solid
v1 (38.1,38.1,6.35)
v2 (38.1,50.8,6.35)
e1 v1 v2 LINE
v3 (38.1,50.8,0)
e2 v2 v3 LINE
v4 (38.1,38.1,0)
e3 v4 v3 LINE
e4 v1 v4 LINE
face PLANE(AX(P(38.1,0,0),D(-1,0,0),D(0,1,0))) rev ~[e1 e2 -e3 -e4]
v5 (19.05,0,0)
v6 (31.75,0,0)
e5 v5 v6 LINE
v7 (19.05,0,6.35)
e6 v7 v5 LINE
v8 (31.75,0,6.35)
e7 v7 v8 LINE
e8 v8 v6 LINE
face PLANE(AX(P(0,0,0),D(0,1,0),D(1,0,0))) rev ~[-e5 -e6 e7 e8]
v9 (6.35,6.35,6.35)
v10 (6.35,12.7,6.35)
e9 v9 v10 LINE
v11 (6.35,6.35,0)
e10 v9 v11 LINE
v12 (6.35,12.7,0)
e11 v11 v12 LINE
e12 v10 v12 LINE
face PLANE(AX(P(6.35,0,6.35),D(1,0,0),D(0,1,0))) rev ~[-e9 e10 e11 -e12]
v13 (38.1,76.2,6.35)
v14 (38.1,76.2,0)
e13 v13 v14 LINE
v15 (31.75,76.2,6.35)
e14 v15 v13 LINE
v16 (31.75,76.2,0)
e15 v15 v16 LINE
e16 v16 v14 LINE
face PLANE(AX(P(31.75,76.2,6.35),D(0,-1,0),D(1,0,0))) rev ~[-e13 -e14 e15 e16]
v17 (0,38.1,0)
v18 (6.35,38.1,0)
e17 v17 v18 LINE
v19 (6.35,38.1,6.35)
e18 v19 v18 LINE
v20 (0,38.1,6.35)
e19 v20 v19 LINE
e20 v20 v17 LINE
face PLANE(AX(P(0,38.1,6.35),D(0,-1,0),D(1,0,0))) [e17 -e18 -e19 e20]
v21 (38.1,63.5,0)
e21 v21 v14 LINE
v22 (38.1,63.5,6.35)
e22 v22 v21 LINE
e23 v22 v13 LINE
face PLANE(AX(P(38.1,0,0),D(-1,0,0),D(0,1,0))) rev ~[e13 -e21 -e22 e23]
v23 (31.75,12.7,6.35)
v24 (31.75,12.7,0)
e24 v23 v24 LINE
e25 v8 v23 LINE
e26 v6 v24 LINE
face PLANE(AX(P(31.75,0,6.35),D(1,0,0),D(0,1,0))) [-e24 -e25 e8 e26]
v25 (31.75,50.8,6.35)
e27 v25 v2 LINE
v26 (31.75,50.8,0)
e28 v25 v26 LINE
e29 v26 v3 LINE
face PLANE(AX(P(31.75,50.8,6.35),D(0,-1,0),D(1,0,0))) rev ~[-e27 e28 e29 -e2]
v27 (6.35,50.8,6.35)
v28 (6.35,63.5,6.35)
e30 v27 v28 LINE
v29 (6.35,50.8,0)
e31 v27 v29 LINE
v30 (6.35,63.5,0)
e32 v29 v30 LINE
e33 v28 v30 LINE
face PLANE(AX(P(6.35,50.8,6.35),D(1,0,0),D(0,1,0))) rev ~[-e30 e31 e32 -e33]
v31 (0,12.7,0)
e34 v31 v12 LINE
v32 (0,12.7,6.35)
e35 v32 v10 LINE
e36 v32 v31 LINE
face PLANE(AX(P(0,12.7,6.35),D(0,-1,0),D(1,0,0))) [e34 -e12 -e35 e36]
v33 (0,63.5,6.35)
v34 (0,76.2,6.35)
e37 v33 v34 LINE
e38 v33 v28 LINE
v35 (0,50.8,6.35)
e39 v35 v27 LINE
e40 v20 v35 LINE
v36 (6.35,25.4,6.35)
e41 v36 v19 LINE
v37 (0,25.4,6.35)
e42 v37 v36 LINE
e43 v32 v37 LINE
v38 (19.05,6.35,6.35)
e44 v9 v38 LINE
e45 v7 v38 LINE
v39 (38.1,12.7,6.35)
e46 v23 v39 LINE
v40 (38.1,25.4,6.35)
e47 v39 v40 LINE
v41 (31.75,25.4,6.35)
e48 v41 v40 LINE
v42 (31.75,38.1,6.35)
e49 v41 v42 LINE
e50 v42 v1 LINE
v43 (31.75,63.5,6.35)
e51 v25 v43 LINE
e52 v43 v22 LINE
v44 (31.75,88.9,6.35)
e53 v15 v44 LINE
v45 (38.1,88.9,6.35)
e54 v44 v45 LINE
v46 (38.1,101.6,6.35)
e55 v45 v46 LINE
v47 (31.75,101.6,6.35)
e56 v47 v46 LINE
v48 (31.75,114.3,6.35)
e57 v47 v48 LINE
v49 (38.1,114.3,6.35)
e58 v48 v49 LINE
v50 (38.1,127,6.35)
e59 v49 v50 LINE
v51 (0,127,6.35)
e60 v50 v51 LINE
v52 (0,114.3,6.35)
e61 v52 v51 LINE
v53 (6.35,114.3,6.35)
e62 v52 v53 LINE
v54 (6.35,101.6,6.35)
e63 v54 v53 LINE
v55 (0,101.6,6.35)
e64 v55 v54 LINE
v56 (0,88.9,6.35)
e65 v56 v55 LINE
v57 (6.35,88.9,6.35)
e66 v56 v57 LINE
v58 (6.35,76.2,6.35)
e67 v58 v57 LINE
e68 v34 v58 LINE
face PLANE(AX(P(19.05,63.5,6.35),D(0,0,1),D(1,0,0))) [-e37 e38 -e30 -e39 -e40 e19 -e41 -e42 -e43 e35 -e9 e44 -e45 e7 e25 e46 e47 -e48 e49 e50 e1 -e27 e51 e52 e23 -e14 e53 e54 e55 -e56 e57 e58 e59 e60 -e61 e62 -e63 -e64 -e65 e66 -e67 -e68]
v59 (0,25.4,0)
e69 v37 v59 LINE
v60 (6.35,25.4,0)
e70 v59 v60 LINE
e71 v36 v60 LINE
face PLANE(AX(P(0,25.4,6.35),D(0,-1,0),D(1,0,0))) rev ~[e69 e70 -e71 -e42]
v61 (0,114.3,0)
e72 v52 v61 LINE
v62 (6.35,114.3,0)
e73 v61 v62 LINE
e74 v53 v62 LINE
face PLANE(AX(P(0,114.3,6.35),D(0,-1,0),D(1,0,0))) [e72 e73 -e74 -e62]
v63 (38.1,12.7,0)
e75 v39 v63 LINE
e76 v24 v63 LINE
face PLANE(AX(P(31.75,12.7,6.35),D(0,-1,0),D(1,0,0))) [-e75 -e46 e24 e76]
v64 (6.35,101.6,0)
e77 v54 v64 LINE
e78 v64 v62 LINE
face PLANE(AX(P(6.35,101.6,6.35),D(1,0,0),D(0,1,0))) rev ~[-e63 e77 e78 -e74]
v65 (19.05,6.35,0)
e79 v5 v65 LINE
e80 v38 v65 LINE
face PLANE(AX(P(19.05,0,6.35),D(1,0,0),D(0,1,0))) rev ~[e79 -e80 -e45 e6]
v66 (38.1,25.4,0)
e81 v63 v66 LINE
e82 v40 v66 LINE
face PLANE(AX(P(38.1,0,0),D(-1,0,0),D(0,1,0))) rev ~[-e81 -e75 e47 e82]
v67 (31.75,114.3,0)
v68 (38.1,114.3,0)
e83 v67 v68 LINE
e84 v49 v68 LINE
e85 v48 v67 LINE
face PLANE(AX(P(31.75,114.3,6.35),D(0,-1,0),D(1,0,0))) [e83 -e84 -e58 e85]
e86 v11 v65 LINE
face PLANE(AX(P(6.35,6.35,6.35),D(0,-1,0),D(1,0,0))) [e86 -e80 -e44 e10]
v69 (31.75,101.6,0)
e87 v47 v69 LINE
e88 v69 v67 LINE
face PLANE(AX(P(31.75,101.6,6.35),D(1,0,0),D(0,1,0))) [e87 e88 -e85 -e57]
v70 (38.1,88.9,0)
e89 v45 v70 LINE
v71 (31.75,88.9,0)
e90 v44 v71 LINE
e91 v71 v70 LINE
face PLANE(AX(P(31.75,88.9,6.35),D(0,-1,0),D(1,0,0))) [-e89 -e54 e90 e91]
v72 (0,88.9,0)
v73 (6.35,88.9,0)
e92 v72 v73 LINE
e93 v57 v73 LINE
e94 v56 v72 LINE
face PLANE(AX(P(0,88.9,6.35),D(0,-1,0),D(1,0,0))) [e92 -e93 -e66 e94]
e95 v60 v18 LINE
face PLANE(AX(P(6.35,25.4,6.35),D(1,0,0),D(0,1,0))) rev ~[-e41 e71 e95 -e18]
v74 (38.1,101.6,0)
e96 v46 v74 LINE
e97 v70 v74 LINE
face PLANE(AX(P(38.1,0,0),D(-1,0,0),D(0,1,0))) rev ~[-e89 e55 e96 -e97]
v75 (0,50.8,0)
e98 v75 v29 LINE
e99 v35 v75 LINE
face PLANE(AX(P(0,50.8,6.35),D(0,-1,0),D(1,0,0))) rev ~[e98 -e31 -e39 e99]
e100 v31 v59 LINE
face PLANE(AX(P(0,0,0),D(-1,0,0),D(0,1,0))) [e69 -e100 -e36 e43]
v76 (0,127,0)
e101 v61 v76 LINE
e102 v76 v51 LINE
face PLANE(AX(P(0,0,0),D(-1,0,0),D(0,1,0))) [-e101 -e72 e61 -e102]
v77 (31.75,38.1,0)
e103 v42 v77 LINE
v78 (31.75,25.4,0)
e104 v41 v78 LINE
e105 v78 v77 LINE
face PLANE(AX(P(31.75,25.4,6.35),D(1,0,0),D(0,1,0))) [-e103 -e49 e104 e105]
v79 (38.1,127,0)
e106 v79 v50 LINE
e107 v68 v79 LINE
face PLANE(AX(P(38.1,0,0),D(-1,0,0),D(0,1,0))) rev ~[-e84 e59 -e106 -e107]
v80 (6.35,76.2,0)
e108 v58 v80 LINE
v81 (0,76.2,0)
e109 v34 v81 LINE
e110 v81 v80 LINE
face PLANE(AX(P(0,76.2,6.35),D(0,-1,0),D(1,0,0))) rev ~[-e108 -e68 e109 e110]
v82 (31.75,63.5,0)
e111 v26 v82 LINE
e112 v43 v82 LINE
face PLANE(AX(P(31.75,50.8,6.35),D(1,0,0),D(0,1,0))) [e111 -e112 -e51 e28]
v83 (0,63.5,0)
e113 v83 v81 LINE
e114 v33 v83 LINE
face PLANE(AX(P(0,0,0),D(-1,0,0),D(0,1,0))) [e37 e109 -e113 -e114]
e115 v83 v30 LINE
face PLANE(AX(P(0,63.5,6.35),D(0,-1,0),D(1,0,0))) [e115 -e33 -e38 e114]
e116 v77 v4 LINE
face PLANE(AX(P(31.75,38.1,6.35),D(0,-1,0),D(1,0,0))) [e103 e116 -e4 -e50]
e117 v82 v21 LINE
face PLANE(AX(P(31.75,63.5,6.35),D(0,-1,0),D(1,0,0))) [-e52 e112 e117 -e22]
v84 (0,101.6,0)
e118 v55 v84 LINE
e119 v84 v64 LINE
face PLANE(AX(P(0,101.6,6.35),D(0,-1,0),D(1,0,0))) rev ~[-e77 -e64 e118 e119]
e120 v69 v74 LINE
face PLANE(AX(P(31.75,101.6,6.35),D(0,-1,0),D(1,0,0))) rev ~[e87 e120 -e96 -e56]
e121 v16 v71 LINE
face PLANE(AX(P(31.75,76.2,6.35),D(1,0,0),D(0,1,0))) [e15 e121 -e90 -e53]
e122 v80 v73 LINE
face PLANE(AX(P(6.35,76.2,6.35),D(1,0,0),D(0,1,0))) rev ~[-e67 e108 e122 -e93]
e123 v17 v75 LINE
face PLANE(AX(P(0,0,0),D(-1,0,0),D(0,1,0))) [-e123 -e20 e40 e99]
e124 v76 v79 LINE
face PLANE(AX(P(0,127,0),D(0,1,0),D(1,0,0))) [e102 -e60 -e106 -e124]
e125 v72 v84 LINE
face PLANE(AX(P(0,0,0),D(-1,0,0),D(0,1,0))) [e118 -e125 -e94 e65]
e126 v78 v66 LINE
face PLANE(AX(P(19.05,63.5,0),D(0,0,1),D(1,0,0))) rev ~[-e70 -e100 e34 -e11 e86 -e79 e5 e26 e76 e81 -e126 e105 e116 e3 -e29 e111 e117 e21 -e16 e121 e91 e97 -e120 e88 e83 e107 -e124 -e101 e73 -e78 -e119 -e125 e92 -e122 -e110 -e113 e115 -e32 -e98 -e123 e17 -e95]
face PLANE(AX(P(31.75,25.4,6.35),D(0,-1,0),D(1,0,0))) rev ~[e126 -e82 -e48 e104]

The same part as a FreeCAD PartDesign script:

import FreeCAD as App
import Part
import Sketcher
Q = App.Units.Quantity


def add_polygon(sketch, points):
    """Adds a closed chain of lines whose ends are joined by coincident constraints."""
    first, n = sketch.GeometryCount, len(points)
    for a, b in zip(points, points[1:] + points[:1]):
        sketch.addGeometry(Part.LineSegment(App.Vector(*a, 0), App.Vector(*b, 0)), False)
    for i in range(n):
        sketch.addConstraint(Sketcher.Constraint("Coincident", first + i, 2, first + (i + 1) % n, 1))

doc = App.newDocument("Part")
body = doc.addObject("PartDesign::Body", "Body")

sketch1 = body.newObject("Sketcher::SketchObject", "Sketch")
sketch1.AttachmentSupport = (doc.getObject("XY_Plane"), [""])
sketch1.MapMode = "FlatFace"
add_polygon(sketch1, [(0, 127), (0, 0), (38, 0), (38, 127)])
sketch1.addConstraint([
    Sketcher.Constraint("Vertical", 0),
    Sketcher.Constraint("Horizontal", 1),
    Sketcher.Constraint("Vertical", 2),
    Sketcher.Constraint("Horizontal", 3),
    Sketcher.Constraint("Coincident", 0, 2, -1, 1),
    Sketcher.Constraint("DistanceY", 0, 2, 0, 1, Q("5 in")),
    Sketcher.Constraint("DistanceX", 1, 1, 1, 2, Q("1.5 in")),
])
pad1 = body.newObject("PartDesign::Pad", "Pad")
pad1.Profile = sketch1
pad1.Length = Q("0.25 in")

sketch2 = body.newObject("Sketcher::SketchObject", "Sketch001")
sketch2.AttachmentSupport = (doc.getObject("XY_Plane"), [""])
sketch2.MapMode = "FlatFace"
sketch2.AttachmentOffset = App.Placement(App.Vector(0, 0, 0.25 * 25.4), App.Rotation())
add_polygon(sketch2, [(0, 13), (0, 0), (6, 0), (6, 13)])
add_polygon(sketch2, [(32, 13), (32, 0), (38, 0), (38, 13)])
sketch2.addConstraint([
    Sketcher.Constraint("Vertical", 0),
    Sketcher.Constraint("Horizontal", 1),
    Sketcher.Constraint("Vertical", 2),
    Sketcher.Constraint("Horizontal", 3),
    Sketcher.Constraint("Vertical", 4),
    Sketcher.Constraint("Horizontal", 5),
    Sketcher.Constraint("Vertical", 6),
    Sketcher.Constraint("Horizontal", 7),
    Sketcher.Constraint("Coincident", 0, 2, -1, 1),
    Sketcher.Constraint("PointOnObject", 4, 2, -1),
    Sketcher.Constraint("Horizontal", 3, 2, 6, 2),
    Sketcher.Constraint("Equal", 3, 5),
    Sketcher.Constraint("DistanceY", 0, 2, 0, 1, Q("0.5 in")),
    Sketcher.Constraint("DistanceX", 1, 2, 4, 2, Q("1 in")),
    Sketcher.Constraint("DistanceX", 1, 1, 1, 2, Q("0.25 in")),
])
pocket1 = body.newObject("PartDesign::Pocket", "Pocket")
pocket1.Profile = sketch2
pocket1.Type = "ThroughAll"
doc.recompute()

linearpattern = body.newObject("PartDesign::LinearPattern", "LinearPattern")
linearpattern.Originals = [pocket1]
linearpattern.Direction = (doc.getObject("Y_Axis"), [""])
linearpattern.Mode = "offset"
linearpattern.Offset = Q("1 in")
linearpattern.Occurrences = 6
body.Tip = linearpattern

sketch3 = body.newObject("Sketcher::SketchObject", "Sketch002")
sketch3.AttachmentSupport = (doc.getObject("XY_Plane"), [""])
sketch3.MapMode = "FlatFace"
sketch3.AttachmentOffset = App.Placement(App.Vector(0, 0, 0.25 * 25.4), App.Rotation())
add_polygon(sketch3, [(6, 6), (6, 0), (19, 0), (19, 6)])
sketch3.addConstraint([
    Sketcher.Constraint("Vertical", 0),
    Sketcher.Constraint("Horizontal", 1),
    Sketcher.Constraint("Vertical", 2),
    Sketcher.Constraint("Horizontal", 3),
    Sketcher.Constraint("PointOnObject", 0, 2, -1),
    Sketcher.Constraint("DistanceX", 1, 1, 1, 2, Q("0.5 in")),
    Sketcher.Constraint("DistanceY", 0, 2, 0, 1, Q("0.25 in")),
    Sketcher.Constraint("DistanceX", -1, 1, 0, 2, Q("0.25 in")),
])
pocket2 = body.newObject("PartDesign::Pocket", "Pocket001")
pocket2.Profile = sketch3
pocket2.Type = "ThroughAll"

doc.recompute()
